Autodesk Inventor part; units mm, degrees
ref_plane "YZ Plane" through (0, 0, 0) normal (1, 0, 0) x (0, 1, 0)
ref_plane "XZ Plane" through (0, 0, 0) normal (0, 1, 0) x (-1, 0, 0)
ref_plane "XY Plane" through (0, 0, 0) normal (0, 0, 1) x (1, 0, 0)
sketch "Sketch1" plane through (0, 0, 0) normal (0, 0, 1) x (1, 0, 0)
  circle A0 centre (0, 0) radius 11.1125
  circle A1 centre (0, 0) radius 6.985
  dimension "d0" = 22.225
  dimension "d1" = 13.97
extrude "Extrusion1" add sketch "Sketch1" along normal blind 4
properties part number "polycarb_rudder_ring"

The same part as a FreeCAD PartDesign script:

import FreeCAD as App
import Part
import Sketcher
Q = App.Units.Quantity

doc = App.newDocument("Part")
body = doc.addObject("PartDesign::Body", "Body")

# Sketch on XY plane
sketch1 = body.newObject("Sketcher::SketchObject", "Sketch")
sketch1.AttachmentSupport = (doc.getObject("XY_Plane"), [""])
sketch1.MapMode = "FlatFace"
sketch1.addGeometry([
    Part.Circle(App.Vector(0, 0, 0), App.Vector(0, 0, 1), 11),
    Part.Circle(App.Vector(0, 0, 0), App.Vector(0, 0, 1), 7),
], False)
sketch1.addConstraint([
    Sketcher.Constraint("Coincident", 0, 3, -1, 1),
    Sketcher.Constraint("Coincident", 1, 3, -1, 1),
    Sketcher.Constraint("Diameter", 1, Q("0.55 in")),
    Sketcher.Constraint("Diameter", 0, Q("0.875 in")),
])
pad1 = body.newObject("PartDesign::Pad", "Pad")
pad1.Profile = sketch1
pad1.Length = 4

doc.recompute()
